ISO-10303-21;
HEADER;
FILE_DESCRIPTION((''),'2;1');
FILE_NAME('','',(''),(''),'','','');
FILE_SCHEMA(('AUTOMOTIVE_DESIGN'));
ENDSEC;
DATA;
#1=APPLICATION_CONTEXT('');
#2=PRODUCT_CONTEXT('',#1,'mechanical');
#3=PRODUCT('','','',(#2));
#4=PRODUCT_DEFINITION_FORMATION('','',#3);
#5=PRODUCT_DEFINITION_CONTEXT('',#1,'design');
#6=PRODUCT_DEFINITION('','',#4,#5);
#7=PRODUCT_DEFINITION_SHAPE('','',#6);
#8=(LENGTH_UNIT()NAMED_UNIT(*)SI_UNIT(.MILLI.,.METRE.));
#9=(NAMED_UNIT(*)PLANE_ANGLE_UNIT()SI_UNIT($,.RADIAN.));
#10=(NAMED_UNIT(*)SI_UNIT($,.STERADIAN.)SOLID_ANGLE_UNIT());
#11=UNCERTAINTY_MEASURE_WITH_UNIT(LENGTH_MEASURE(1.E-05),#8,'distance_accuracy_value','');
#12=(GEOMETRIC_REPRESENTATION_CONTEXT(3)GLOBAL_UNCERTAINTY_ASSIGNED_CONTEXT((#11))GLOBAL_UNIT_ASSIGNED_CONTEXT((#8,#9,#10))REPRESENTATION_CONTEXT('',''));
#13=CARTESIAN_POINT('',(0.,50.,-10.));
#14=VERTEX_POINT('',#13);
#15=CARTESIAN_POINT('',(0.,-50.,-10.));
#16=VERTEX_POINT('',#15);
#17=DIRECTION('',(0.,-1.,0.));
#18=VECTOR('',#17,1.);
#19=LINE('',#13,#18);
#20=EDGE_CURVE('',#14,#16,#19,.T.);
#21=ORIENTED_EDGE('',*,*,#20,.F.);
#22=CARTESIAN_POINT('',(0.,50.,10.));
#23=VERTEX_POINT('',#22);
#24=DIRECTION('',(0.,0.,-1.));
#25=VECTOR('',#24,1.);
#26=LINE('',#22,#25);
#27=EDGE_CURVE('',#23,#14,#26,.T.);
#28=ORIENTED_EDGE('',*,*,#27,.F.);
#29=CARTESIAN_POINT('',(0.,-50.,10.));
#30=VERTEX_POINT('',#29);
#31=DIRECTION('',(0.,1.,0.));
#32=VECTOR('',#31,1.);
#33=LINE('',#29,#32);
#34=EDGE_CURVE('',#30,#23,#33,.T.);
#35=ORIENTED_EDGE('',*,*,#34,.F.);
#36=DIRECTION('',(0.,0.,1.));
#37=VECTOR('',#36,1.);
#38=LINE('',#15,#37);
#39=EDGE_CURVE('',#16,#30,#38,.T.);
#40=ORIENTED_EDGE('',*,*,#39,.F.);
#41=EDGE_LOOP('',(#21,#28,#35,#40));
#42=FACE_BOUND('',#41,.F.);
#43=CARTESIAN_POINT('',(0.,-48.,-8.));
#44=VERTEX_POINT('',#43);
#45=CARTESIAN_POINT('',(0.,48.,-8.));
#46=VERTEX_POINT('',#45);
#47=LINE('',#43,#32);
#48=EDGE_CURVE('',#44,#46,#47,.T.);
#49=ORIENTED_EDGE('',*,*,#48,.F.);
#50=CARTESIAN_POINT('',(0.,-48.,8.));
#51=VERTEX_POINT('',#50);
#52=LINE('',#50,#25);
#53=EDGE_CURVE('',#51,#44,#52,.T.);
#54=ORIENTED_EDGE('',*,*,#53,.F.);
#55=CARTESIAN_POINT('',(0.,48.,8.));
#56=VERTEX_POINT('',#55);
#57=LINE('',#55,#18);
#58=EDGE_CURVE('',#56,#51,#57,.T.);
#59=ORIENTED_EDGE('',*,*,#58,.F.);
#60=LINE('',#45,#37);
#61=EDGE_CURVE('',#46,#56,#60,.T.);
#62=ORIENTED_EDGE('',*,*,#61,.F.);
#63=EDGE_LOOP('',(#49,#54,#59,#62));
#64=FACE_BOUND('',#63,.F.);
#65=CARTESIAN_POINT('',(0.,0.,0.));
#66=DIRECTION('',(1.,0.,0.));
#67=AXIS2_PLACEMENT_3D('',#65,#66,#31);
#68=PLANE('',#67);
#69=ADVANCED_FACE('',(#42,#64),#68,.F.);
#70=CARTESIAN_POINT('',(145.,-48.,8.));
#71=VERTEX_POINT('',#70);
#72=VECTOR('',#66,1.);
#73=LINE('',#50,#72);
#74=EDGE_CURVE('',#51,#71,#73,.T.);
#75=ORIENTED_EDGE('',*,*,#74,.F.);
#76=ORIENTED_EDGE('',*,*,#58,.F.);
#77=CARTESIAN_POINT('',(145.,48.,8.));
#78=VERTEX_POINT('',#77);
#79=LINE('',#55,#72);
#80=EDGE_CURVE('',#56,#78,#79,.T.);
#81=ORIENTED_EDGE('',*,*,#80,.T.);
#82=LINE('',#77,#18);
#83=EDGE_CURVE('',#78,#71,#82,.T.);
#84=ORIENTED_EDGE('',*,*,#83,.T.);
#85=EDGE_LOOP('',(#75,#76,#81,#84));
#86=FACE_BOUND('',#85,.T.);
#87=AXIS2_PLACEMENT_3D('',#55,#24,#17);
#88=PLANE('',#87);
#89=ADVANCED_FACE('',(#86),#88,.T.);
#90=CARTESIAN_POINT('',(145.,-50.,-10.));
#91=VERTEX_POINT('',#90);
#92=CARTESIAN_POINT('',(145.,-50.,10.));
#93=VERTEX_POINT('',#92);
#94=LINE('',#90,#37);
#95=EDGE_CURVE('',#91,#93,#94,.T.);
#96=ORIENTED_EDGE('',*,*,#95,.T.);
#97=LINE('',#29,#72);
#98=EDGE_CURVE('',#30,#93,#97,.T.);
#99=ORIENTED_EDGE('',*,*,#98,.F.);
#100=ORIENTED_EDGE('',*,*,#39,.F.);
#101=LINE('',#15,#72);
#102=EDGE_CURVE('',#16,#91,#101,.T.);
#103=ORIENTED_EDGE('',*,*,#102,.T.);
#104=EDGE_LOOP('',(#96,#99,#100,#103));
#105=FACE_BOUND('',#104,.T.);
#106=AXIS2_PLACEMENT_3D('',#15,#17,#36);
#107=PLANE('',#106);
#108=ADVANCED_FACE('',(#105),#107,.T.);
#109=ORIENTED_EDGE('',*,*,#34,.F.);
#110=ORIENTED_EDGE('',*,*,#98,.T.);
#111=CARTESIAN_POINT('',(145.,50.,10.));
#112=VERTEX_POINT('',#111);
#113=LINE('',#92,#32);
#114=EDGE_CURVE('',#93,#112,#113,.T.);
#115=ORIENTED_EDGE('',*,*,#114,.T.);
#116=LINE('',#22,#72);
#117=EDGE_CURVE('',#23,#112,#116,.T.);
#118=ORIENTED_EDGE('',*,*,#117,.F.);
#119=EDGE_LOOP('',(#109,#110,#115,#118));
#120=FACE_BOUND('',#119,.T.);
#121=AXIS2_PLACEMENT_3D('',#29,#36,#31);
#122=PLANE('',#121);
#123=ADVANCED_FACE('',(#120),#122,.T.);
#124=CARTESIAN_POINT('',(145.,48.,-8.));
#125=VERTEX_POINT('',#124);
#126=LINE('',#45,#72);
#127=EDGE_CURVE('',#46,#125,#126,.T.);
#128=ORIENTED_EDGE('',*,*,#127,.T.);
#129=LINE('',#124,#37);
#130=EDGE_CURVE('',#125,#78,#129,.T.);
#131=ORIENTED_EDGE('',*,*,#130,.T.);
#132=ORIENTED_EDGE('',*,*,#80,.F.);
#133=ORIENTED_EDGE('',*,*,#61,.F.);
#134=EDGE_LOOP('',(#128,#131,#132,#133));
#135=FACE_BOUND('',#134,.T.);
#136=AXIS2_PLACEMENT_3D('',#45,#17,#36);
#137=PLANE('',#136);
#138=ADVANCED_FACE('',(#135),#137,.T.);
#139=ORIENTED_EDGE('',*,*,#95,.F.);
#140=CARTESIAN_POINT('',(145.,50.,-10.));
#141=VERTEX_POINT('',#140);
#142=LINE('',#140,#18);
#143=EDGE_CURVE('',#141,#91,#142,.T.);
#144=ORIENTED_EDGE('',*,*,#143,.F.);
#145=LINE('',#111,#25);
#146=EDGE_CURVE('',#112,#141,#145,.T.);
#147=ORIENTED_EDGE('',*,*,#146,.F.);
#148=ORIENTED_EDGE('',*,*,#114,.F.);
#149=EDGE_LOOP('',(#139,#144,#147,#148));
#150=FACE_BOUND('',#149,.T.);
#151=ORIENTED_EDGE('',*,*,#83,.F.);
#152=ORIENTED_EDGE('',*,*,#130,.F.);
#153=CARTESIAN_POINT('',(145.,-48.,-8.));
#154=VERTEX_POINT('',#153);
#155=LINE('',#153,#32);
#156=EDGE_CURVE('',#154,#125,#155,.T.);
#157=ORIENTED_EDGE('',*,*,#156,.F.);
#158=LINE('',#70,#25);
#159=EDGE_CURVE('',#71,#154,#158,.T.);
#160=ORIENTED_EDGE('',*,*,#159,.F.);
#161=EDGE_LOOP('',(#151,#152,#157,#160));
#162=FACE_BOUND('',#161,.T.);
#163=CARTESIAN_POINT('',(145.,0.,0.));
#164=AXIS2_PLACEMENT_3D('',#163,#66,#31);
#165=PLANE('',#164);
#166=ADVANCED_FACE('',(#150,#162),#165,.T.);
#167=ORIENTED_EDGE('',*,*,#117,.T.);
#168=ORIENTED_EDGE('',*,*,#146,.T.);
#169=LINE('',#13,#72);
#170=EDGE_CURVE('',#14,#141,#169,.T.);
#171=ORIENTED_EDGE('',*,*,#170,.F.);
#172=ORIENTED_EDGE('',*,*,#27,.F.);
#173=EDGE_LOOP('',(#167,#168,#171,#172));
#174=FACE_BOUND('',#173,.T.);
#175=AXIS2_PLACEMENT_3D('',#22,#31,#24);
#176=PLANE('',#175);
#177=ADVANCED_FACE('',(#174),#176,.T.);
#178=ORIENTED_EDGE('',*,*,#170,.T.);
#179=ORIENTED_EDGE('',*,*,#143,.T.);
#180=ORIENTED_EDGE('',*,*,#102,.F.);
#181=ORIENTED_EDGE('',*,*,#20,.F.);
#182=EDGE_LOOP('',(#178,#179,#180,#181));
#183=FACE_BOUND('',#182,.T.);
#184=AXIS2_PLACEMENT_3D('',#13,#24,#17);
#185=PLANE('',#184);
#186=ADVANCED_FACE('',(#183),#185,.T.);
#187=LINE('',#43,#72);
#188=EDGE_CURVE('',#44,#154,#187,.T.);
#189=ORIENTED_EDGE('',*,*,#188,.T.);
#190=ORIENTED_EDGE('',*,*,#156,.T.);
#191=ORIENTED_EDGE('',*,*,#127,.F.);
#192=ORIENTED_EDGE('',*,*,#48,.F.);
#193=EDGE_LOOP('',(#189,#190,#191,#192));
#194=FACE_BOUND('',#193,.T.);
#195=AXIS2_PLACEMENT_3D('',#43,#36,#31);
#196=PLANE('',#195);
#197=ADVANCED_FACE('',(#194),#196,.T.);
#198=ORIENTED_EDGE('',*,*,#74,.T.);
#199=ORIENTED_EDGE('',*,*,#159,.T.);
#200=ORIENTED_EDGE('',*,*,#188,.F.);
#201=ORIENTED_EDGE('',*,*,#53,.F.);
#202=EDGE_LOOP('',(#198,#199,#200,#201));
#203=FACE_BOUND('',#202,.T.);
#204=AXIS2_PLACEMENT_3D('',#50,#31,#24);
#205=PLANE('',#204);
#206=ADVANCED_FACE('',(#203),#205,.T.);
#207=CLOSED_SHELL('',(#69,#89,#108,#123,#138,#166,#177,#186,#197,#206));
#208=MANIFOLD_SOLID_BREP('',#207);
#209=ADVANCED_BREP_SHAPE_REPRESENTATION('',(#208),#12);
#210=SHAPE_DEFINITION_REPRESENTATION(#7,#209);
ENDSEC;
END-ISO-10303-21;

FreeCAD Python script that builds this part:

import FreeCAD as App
import Part
import Sketcher

V = App.Vector


def add_polygon(sketch, points):
    """Adds a closed chain of lines whose ends are joined by coincident constraints."""
    first, n = sketch.GeometryCount, len(points)
    for a, b in zip(points, points[1:] + points[:1]):
        sketch.addGeometry(Part.LineSegment(App.Vector(*a, 0), App.Vector(*b, 0)), False)
    for i in range(n):
        sketch.addConstraint(Sketcher.Constraint("Coincident", first + i, 2, first + (i + 1) % n, 1))

doc = App.newDocument("Part")
body = doc.addObject("PartDesign::Body", "Body")

# Sketch on YZ plane
sketch1 = body.newObject("Sketcher::SketchObject", "Sketch")
sketch1.AttachmentSupport = (doc.getObject("YZ_Plane"), [""])
sketch1.MapMode = "FlatFace"
add_polygon(sketch1, [(50, 10), (-50, 10), (-50, -10), (50, -10)])  # lines 0-3
add_polygon(sketch1, [(48, 8), (48, -8), (-48, -8), (-48, 8)])  # lines 4-7
sketch1.addConstraint([
    Sketcher.Constraint("Horizontal", 0),
    Sketcher.Constraint("Vertical", 1),
    Sketcher.Constraint("Horizontal", 2),
    Sketcher.Constraint("Vertical", 3),
    Sketcher.Constraint("Vertical", 4),
    Sketcher.Constraint("Horizontal", 5),
    Sketcher.Constraint("Vertical", 6),
    Sketcher.Constraint("Horizontal", 7),
    Sketcher.Constraint("Symmetric", 0, 2, 2, 2, -1, 1),
    Sketcher.Constraint("Symmetric", 4, 2, 6, 2, -1, 1),
    Sketcher.Constraint("DistanceX", 0, 2, 0, 1, 100.0),
    Sketcher.Constraint("DistanceY", 1, 2, 1, 1, 20.0),
    Sketcher.Constraint("DistanceX", 4, 2, 2, 2, 2.0),
    Sketcher.Constraint("DistanceY", 2, 2, 4, 2, 2.0),
])
pad1 = body.newObject("PartDesign::Pad", "Pad")
pad1.Profile = sketch1
pad1.Length = 145

doc.recompute()
